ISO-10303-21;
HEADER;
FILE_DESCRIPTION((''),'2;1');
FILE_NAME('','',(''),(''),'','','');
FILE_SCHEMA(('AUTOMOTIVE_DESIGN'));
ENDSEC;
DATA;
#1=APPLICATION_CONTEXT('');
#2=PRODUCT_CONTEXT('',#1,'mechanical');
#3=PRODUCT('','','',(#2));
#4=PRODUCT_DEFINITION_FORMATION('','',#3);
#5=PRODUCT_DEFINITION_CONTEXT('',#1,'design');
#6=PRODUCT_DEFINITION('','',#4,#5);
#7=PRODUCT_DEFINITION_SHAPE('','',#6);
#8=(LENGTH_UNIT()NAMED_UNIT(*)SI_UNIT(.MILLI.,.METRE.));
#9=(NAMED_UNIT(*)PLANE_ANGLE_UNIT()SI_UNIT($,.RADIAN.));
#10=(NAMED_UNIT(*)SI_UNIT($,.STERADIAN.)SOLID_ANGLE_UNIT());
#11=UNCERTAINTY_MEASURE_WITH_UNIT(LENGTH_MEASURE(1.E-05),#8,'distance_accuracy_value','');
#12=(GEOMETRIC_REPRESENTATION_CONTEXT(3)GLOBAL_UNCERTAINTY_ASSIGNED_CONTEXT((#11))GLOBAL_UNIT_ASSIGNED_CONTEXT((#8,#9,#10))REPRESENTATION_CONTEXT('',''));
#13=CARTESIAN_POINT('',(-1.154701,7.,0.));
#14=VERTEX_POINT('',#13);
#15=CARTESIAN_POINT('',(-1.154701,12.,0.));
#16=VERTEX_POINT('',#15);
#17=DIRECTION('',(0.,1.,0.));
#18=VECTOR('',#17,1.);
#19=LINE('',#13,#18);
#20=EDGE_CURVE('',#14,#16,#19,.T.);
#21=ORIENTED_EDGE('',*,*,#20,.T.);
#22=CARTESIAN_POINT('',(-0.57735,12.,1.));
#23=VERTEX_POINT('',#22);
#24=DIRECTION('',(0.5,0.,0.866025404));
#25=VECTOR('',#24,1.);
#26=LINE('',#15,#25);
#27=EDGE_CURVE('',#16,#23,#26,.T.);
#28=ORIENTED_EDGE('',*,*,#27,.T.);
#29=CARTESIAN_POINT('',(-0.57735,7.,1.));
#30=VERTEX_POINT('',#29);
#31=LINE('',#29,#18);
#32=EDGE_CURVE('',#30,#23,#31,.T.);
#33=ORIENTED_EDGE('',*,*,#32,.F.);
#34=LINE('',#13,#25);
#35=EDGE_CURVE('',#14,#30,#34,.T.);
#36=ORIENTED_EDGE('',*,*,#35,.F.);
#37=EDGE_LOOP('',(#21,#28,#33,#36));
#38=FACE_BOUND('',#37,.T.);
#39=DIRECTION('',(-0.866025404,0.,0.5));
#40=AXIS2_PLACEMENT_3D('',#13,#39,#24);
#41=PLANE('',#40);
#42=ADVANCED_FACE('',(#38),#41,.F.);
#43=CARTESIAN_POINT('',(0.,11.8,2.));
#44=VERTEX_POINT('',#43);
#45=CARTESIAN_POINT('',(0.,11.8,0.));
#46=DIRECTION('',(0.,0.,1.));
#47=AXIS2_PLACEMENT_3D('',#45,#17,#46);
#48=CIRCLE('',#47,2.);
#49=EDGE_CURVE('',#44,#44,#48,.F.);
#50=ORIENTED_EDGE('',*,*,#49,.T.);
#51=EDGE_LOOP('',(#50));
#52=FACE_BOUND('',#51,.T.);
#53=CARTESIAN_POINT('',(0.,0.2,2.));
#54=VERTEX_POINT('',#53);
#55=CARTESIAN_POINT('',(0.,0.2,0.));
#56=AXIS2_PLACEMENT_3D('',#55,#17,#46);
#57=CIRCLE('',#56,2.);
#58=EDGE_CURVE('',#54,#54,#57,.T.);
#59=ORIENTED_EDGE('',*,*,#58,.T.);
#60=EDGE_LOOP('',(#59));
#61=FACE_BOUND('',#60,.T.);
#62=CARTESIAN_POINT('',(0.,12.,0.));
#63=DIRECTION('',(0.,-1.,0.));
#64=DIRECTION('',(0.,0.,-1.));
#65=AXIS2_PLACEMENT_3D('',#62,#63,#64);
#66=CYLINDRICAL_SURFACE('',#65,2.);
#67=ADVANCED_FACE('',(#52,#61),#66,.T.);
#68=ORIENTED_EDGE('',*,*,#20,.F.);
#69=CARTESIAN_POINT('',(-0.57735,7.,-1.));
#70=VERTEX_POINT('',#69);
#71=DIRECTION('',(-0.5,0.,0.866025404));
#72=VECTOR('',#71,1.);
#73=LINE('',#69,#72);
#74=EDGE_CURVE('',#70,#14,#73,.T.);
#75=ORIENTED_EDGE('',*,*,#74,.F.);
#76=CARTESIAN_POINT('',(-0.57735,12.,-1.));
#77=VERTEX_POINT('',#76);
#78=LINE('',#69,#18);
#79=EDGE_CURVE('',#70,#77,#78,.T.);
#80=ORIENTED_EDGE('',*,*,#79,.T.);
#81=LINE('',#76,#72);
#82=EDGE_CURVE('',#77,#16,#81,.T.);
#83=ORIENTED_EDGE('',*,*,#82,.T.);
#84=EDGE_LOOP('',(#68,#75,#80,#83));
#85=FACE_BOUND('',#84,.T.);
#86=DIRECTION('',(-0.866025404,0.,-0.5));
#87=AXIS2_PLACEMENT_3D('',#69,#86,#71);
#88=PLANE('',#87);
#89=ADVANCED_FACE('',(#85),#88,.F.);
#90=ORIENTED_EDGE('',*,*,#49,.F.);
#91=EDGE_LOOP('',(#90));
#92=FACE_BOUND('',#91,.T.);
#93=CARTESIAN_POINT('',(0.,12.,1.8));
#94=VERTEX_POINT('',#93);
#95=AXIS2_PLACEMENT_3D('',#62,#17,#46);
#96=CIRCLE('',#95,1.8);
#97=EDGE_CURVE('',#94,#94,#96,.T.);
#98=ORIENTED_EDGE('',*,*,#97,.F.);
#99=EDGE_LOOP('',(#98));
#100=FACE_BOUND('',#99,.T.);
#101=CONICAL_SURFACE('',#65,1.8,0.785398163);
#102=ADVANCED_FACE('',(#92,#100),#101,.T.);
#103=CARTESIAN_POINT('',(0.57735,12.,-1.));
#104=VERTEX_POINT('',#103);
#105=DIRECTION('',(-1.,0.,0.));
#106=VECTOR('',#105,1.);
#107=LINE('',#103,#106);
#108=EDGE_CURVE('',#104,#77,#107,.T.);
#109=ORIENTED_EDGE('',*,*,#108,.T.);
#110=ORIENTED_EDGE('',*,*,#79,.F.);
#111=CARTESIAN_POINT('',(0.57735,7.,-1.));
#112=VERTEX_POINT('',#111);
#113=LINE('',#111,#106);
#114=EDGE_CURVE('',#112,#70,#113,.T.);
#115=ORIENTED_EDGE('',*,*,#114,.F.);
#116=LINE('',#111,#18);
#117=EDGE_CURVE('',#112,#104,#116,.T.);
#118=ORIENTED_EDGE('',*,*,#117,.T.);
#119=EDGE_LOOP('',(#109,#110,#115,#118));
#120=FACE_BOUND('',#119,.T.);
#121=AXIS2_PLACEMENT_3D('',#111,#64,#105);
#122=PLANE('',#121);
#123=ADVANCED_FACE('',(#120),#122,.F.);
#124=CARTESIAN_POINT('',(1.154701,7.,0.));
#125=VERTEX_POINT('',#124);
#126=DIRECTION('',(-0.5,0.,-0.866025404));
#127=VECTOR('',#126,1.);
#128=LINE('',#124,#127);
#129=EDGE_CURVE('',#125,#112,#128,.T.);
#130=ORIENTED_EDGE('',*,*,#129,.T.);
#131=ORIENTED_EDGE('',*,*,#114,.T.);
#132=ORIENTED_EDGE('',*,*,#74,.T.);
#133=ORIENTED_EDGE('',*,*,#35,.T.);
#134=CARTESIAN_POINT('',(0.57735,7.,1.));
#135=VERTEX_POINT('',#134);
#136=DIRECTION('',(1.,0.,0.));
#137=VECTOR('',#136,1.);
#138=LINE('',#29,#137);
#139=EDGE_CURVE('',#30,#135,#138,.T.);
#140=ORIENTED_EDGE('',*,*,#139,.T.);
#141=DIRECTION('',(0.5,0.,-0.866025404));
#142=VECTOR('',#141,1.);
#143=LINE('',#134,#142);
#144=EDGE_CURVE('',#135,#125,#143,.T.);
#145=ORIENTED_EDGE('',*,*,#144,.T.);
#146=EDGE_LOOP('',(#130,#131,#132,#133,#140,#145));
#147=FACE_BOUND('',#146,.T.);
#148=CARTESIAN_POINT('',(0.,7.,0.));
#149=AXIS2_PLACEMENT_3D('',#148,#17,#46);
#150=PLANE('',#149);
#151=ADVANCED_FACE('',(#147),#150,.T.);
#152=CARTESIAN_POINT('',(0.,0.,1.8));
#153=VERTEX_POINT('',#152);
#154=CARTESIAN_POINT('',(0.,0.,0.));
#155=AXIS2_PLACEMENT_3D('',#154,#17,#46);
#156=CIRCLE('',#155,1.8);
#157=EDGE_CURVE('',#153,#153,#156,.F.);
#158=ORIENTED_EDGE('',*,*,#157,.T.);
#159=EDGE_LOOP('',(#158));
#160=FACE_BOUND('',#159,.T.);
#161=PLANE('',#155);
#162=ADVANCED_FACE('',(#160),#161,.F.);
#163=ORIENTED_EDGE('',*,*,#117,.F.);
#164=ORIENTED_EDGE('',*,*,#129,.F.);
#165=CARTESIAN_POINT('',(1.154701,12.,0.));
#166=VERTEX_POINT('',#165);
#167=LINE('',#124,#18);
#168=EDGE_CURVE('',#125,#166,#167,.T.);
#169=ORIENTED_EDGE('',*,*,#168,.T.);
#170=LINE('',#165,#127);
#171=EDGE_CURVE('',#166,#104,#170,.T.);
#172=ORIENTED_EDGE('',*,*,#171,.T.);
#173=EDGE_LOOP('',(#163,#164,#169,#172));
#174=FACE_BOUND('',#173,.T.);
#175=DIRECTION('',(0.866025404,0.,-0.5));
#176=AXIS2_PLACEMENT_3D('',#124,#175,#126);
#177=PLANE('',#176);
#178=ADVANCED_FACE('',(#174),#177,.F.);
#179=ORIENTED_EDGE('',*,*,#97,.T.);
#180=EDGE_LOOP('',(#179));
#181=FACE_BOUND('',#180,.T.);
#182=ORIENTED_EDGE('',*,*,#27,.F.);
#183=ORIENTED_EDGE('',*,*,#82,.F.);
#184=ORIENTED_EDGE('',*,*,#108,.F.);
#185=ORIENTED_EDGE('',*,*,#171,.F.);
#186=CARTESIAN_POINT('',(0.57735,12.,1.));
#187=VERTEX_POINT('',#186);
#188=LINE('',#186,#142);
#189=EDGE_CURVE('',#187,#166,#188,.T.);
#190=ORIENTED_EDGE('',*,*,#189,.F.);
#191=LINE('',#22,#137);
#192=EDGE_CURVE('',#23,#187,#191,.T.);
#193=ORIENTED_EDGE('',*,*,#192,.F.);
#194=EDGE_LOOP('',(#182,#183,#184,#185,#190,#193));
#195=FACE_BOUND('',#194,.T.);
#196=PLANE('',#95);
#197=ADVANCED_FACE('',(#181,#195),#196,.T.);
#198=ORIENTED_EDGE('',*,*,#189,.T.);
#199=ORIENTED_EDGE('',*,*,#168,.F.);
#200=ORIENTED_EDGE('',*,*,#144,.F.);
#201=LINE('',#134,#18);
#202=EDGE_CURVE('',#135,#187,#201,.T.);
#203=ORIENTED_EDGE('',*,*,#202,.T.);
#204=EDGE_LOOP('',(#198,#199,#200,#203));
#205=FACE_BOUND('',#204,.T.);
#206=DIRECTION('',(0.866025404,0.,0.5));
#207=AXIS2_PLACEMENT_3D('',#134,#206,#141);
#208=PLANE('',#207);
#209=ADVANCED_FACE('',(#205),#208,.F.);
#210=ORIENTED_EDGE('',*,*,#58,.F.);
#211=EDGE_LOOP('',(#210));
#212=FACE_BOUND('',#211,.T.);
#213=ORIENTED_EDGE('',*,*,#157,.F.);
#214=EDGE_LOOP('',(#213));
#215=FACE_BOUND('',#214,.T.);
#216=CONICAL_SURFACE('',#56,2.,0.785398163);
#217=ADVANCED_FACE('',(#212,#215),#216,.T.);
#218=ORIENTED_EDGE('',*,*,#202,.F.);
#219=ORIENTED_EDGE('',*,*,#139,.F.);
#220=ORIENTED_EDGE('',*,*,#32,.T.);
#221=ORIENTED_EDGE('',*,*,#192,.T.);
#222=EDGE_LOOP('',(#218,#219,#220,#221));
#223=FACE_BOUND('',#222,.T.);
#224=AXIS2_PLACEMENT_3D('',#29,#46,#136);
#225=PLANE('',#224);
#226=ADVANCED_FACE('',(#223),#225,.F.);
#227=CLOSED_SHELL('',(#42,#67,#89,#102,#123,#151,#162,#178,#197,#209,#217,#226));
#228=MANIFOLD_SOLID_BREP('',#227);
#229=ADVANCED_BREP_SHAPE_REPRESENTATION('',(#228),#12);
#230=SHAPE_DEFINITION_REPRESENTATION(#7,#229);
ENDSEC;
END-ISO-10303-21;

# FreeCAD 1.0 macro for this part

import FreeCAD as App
import Part
import Sketcher

V = App.Vector
Q = App.Units.Quantity


def edges_at(feature, points):
    """Names of the edges that pass closest to the given points."""
    edges = feature.Shape.Edges
    near = lambda p: min(range(len(edges)), key=lambda i: edges[i].distToShape(Part.Vertex(*p))[0])
    return sorted({f"Edge{near(p) + 1}" for p in points})


def add_polygon(sketch, points):
    """Adds a closed chain of lines whose ends are joined by coincident constraints."""
    first, n = sketch.GeometryCount, len(points)
    for a, b in zip(points, points[1:] + points[:1]):
        sketch.addGeometry(Part.LineSegment(App.Vector(*a, 0), App.Vector(*b, 0)), False)
    for i in range(n):
        sketch.addConstraint(Sketcher.Constraint("Coincident", first + i, 2, first + (i + 1) % n, 1))

doc = App.newDocument("Part")
params = doc.addObject("Spreadsheet::Sheet", "Params")
for row, (alias, value) in enumerate([
    ("sketch1_diameter", "4 mm"),
    ("pad1_length", "12 mm"),
    ("chamfer_size", "0.2 mm"),
    ("pocket1_length", "5 mm"),
], start=1):
    params.set(f"A{row}", alias)
    params.set(f"B{row}", "=" + value)
    params.setAlias(f"B{row}", alias)

body = doc.addObject("PartDesign::Body", "Body")

# Sketch on XZ plane
sketch1 = body.newObject("Sketcher::SketchObject", "Sketch")
sketch1.AttachmentSupport = (doc.getObject("XZ_Plane"), [""])
sketch1.MapMode = "FlatFace"
sketch1.addGeometry(Part.Circle(V(0, 0, 0), V(0, 0, 1), 2), False)
sketch1.addConstraint([
    Sketcher.Constraint("Coincident", 0, 3, -1, 1),
    Sketcher.Constraint("Diameter", 0, Q("4 mm")),
])
sketch1.setExpression("Constraints[1]", "Params.sketch1_diameter")
pad1 = body.newObject("PartDesign::Pad", "Pad")
pad1.Profile = sketch1
pad1.setExpression("Length", "Params.pad1_length")
pad1.Reversed = True
doc.recompute()

chamfer = body.newObject("PartDesign::Chamfer", "Chamfer")
chamfer.Base = (pad1, edges_at(pad1, [(0, 0, -2), (0, 12, -2)]))
chamfer.setExpression("Size", "Params.chamfer_size")

# Sketch on XZ plane
sketch2 = body.newObject("Sketcher::SketchObject", "Sketch001")
sketch2.AttachmentSupport = (doc.getObject("XZ_Plane"), [""])
sketch2.MapMode = "FlatFace"
sketch2.AttachmentOffset = App.Placement(V(0, 0, -12), App.Rotation())
add_polygon(sketch2, [(-1.2, 0), (-0.6, 1), (0.6, 1), (1.2, 0), (0.6, -1), (-0.6, -1)])  # lines 0-5
sketch2.addConstraint([
    Sketcher.Constraint("Horizontal", 1),
    Sketcher.Constraint("Horizontal", 4),
    Sketcher.Constraint("Symmetric", 0, 2, 3, 2, -1, 1),
    Sketcher.Constraint("Symmetric", 2, 2, 5, 2, -1, 1),
    Sketcher.Constraint("PointOnObject", 2, 2, -1),
    Sketcher.Constraint("Parallel", 2, 5),
    Sketcher.Constraint("Vertical", 1, 2, 3, 2),
    Sketcher.Constraint("Angle", 0, Q("60 deg")),
    Sketcher.Constraint("DistanceY", -1, 1, 0, 2, Q("1 mm")),
    Sketcher.Constraint("DistanceX", 1, 1, 1, 2, Q("1.154701 mm")),
])
pocket1 = body.newObject("PartDesign::Pocket", "Pocket")
pocket1.Profile = sketch2
pocket1.setExpression("Length", "Params.pocket1_length")
pocket1.Reversed = True

doc.recompute()
